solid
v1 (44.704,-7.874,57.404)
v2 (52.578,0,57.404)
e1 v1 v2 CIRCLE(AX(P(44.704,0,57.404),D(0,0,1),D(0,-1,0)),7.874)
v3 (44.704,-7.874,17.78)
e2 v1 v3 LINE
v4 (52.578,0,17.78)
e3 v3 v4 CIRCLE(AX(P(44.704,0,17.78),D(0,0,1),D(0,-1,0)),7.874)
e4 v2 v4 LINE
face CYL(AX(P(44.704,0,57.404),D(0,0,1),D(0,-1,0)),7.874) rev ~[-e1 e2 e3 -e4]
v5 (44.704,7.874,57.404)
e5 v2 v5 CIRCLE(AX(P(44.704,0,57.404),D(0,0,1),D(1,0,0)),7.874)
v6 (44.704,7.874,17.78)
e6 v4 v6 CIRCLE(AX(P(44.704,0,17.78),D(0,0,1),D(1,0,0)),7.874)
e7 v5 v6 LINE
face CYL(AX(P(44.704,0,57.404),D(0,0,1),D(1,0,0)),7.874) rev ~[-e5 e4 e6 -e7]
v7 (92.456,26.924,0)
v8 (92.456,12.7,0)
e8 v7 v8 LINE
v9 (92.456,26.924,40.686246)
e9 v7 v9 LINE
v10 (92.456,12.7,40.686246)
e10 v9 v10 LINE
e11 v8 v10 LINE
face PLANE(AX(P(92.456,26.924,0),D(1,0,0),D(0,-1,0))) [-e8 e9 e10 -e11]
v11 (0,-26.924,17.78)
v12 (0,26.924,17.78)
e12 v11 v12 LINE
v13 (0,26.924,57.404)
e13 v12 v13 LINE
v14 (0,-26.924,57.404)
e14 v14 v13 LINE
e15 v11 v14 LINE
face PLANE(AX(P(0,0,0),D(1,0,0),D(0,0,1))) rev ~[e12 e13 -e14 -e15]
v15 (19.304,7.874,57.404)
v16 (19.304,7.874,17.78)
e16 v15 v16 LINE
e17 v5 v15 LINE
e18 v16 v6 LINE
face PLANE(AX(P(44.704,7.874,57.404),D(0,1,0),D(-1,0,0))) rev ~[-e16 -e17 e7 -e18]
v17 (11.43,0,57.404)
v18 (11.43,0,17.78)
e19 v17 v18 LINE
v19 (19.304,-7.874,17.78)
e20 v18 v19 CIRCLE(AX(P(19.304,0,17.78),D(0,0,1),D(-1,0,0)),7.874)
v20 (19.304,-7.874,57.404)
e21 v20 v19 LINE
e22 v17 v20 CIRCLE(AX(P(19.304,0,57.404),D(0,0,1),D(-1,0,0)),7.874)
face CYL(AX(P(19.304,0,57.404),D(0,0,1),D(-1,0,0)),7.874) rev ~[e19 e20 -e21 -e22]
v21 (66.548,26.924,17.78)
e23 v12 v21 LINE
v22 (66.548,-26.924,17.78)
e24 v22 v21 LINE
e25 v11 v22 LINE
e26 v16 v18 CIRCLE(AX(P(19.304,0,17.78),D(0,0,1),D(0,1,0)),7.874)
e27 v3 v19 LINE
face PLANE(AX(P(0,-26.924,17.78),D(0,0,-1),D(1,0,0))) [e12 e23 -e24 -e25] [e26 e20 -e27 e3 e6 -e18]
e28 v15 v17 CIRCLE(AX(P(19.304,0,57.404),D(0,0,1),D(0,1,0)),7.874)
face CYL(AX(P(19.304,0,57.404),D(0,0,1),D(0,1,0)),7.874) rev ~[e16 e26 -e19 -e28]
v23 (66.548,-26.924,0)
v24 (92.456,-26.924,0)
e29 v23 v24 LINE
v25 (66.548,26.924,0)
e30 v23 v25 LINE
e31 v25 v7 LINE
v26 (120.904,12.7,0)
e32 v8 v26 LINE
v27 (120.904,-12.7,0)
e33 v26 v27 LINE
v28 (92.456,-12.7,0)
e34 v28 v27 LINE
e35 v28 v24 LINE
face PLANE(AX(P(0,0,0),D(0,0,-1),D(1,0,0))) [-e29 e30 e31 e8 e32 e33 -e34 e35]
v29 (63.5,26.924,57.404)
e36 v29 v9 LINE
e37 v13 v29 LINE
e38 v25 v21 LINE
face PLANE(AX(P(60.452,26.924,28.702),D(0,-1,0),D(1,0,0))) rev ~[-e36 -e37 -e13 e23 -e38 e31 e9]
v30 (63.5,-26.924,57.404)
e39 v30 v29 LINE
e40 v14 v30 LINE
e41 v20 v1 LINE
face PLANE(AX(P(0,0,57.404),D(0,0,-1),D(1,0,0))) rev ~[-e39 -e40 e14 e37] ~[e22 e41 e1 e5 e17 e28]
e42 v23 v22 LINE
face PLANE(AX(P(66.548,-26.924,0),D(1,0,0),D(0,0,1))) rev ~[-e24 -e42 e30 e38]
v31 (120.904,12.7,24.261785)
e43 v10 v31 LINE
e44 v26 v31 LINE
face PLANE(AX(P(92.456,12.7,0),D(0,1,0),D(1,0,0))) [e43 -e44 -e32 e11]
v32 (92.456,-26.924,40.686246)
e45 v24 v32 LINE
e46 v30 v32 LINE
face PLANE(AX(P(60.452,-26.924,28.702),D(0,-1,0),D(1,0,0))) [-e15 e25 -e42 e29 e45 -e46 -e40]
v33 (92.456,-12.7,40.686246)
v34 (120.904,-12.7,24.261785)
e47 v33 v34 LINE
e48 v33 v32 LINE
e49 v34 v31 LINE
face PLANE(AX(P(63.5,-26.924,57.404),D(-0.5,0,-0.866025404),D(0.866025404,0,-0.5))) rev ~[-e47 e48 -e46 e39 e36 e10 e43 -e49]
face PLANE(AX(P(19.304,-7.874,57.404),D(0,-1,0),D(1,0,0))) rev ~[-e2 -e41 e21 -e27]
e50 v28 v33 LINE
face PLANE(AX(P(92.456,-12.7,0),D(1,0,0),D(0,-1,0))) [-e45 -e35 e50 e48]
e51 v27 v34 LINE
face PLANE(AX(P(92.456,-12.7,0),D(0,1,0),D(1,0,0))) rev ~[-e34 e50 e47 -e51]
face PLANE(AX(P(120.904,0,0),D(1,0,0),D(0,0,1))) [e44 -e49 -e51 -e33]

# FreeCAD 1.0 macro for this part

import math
import FreeCAD as App
import Part
import Sketcher
from FreeCAD import Vector
Q = App.Units.Quantity

doc = App.newDocument("Part")
body = doc.addObject("PartDesign::Body", "Body")

# Sketch on XZ plane
sketch1 = body.newObject("Sketcher::SketchObject", "Sketch")
sketch1.AttachmentSupport = (doc.getObject("XZ_Plane"), [""])
sketch1.MapMode = "FlatFace"
sketch1.addGeometry([
    Part.LineSegment(Vector(0, 57, 0), Vector(0, 0, 0)),
    Part.LineSegment(Vector(0, 0, 0), Vector(121, 0, 0)),
    Part.LineSegment(Vector(121, 0, 0), Vector(121, 57, 0)),
    Part.LineSegment(Vector(121, 57, 0), Vector(0, 57, 0)),
], False)
sketch1.addConstraint([
    Sketcher.Constraint("Coincident", 0, 2, 1, 1),
    Sketcher.Constraint("Coincident", 1, 2, 2, 1),
    Sketcher.Constraint("Coincident", 2, 2, 3, 1),
    Sketcher.Constraint("Coincident", 3, 2, 0, 1),
    Sketcher.Constraint("Vertical", 0),
    Sketcher.Constraint("Horizontal", 1),
    Sketcher.Constraint("Vertical", 2),
    Sketcher.Constraint("Horizontal", 3),
    Sketcher.Constraint("Coincident", 0, 2, -1, 1),
    Sketcher.Constraint("DistanceX", 1, 1, 1, 2, Q("4.76 in")),
    Sketcher.Constraint("DistanceY", 0, 2, 0, 1, Q("2.26 in")),
])
pad1 = body.newObject("PartDesign::Pad", "Pad")
pad1.Profile = sketch1
pad1.Length = Q("2.12 in")
pad1.Midplane = True

# Sketch on XZ plane
sketch2 = body.newObject("Sketcher::SketchObject", "Sketch001")
sketch2.AttachmentSupport = (doc.getObject("XZ_Plane"), [""])
sketch2.MapMode = "FlatFace"
sketch2.AttachmentOffset = App.Placement(Vector(0, 0, 1.06 * 25.4), App.Rotation())
sketch2.addGeometry([
    Part.LineSegment(Vector(0, 18, 0), Vector(0, 0, 0)),  # 0
    Part.LineSegment(Vector(0, 0, 0), Vector(67, 0, 0)),  # 1
    Part.LineSegment(Vector(67, 0, 0), Vector(67, 18, 0)),  # 2
    Part.LineSegment(Vector(67, 18, 0), Vector(0, 18, 0)),  # 3
    Part.LineSegment(Vector(64, 57, 0), Vector(121, 24, 0)),  # 4
    Part.LineSegment(Vector(121, 24, 0), Vector(121, 57, 0)),  # 5
    Part.LineSegment(Vector(121, 57, 0), Vector(64, 57, 0)),  # 6
], False)
sketch2.addConstraint([
    Sketcher.Constraint("Coincident", 0, 2, 1, 1),
    Sketcher.Constraint("Coincident", 1, 2, 2, 1),
    Sketcher.Constraint("Coincident", 2, 2, 3, 1),
    Sketcher.Constraint("Coincident", 3, 2, 0, 1),
    Sketcher.Constraint("Coincident", 4, 2, 5, 1),
    Sketcher.Constraint("Coincident", 5, 2, 6, 1),
    Sketcher.Constraint("Coincident", 6, 2, 4, 1),
    Sketcher.Constraint("Vertical", 0),
    Sketcher.Constraint("Horizontal", 1),
    Sketcher.Constraint("Vertical", 2),
    Sketcher.Constraint("Horizontal", 3),
    Sketcher.Constraint("Vertical", 5),
    Sketcher.Constraint("Horizontal", 6),
    Sketcher.Constraint("Coincident", 0, 2, -1, 1),
    Sketcher.Constraint("DistanceY", 0, 2, 0, 1, Q("0.7 in")),
    Sketcher.Constraint("Angle", 4, Q("-30 deg")),
    Sketcher.Constraint("DistanceX", 1, 1, 1, 2, Q("2.62 in")),
    Sketcher.Constraint("DistanceX", 6, 2, 6, 1, Q("2.26 in")),
    Sketcher.Constraint("DistanceX", -1, 1, 6, 2, Q("2.5 in")),
    Sketcher.Constraint("DistanceY", -1, 1, 5, 2, Q("2.26 in")),
])
pocket1 = body.newObject("PartDesign::Pocket", "Pocket")
pocket1.Profile = sketch2
pocket1.Type = "ThroughAll"

# Sketch on XY plane
sketch3 = body.newObject("Sketcher::SketchObject", "Sketch002")
sketch3.AttachmentSupport = (doc.getObject("XY_Plane"), [""])
sketch3.MapMode = "FlatFace"
sketch3.addGeometry([
    Part.LineSegment(Vector(92, -27, 0), Vector(92, -13, 0)),  # 0
    Part.LineSegment(Vector(92, -13, 0), Vector(121, -13, 0)),  # 1
    Part.LineSegment(Vector(121, -13, 0), Vector(121, -27, 0)),  # 2
    Part.LineSegment(Vector(121, -27, 0), Vector(92, -27, 0)),  # 3
    Part.LineSegment(Vector(92, 13, 0), Vector(92, 27, 0)),  # 4
    Part.LineSegment(Vector(92, 27, 0), Vector(121, 27, 0)),  # 5
    Part.LineSegment(Vector(121, 27, 0), Vector(121, 13, 0)),  # 6
    Part.LineSegment(Vector(121, 13, 0), Vector(92, 13, 0)),  # 7
], False)
sketch3.addConstraint([
    Sketcher.Constraint("Coincident", 0, 2, 1, 1),
    Sketcher.Constraint("Coincident", 1, 2, 2, 1),
    Sketcher.Constraint("Coincident", 2, 2, 3, 1),
    Sketcher.Constraint("Coincident", 3, 2, 0, 1),
    Sketcher.Constraint("Coincident", 4, 2, 5, 1),
    Sketcher.Constraint("Coincident", 5, 2, 6, 1),
    Sketcher.Constraint("Coincident", 6, 2, 7, 1),
    Sketcher.Constraint("Coincident", 7, 2, 4, 1),
    Sketcher.Constraint("Vertical", 0),
    Sketcher.Constraint("Horizontal", 1),
    Sketcher.Constraint("Vertical", 2),
    Sketcher.Constraint("Horizontal", 3),
    Sketcher.Constraint("Vertical", 4),
    Sketcher.Constraint("Horizontal", 5),
    Sketcher.Constraint("Vertical", 6),
    Sketcher.Constraint("Horizontal", 7),
    Sketcher.Constraint("Symmetric", 3, 2, 4, 2, -1),
    Sketcher.Constraint("Symmetric", 1, 2, 6, 2, -1),
    Sketcher.Constraint("DistanceY", 1, 2, 6, 2, Q("1 in")),
    Sketcher.Constraint("DistanceX", 1, 1, 1, 2, Q("1.12 in")),
    Sketcher.Constraint("DistanceY", 0, 1, 0, 2, Q("0.56 in")),
    Sketcher.Constraint("DistanceX", -1, 1, 0, 2, Q("3.64 in")),
])
pocket2 = body.newObject("PartDesign::Pocket", "Pocket001")
pocket2.Profile = sketch3
pocket2.Type = "ThroughAll"
pocket2.Reversed = True

# Sketch on XY plane
sketch4 = body.newObject("Sketcher::SketchObject", "Sketch003")
sketch4.AttachmentSupport = (doc.getObject("XY_Plane"), [""])
sketch4.MapMode = "FlatFace"
sketch4.AttachmentOffset = App.Placement(Vector(0, 0, 2.26 * 25.4), App.Rotation())
sketch4.addGeometry([
    Part.LineSegment(Vector(19, -8, 0), Vector(45, -8, 0)),  # 0
    Part.ArcOfCircle(Part.Circle(Vector(45, 0, 0), Vector(0, 0, 1), 8), math.radians(-90), math.radians(0)),  # 1
    Part.ArcOfCircle(Part.Circle(Vector(45, 0, 0), Vector(0, 0, 1), 8), math.radians(0), math.radians(90)),  # 2
    Part.LineSegment(Vector(45, 8, 0), Vector(19, 8, 0)),  # 3
    Part.ArcOfCircle(Part.Circle(Vector(19, 0, 0), Vector(0, 0, 1), 8), math.radians(90), math.radians(180)),  # 4
    Part.ArcOfCircle(Part.Circle(Vector(19, 0, 0), Vector(0, 0, 1), 8), math.radians(180), math.radians(270)),  # 5
], False)
sketch4.addConstraint([
    Sketcher.Constraint("Tangent", 0, 2, 1, 1),
    Sketcher.Constraint("Tangent", 1, 2, 2, 1),
    Sketcher.Constraint("Tangent", 2, 2, 3, 1),
    Sketcher.Constraint("Tangent", 3, 2, 4, 1),
    Sketcher.Constraint("Tangent", 4, 2, 5, 1),
    Sketcher.Constraint("Tangent", 5, 2, 0, 1),
    Sketcher.Constraint("Horizontal", 0),
    Sketcher.Constraint("Horizontal", 3),
    Sketcher.Constraint("Equal", 1, 2),
    Sketcher.Constraint("Equal", 2, 4),
    Sketcher.Constraint("PointOnObject", 1, 3, -1),
    Sketcher.Constraint("PointOnObject", 1, 2, -1),
    Sketcher.Constraint("PointOnObject", 4, 2, -1),
    Sketcher.Constraint("DistanceX", 0, 1, 0, 2, Q("1 in")),
    Sketcher.Constraint("Radius", 1, Q("0.31 in")),
    Sketcher.Constraint("DistanceX", -1, 1, 1, 3, Q("1.76 in")),
])
pocket3 = body.newObject("PartDesign::Pocket", "Pocket002")
pocket3.Profile = sketch4
pocket3.Type = "ThroughAll"

doc.recompute()
